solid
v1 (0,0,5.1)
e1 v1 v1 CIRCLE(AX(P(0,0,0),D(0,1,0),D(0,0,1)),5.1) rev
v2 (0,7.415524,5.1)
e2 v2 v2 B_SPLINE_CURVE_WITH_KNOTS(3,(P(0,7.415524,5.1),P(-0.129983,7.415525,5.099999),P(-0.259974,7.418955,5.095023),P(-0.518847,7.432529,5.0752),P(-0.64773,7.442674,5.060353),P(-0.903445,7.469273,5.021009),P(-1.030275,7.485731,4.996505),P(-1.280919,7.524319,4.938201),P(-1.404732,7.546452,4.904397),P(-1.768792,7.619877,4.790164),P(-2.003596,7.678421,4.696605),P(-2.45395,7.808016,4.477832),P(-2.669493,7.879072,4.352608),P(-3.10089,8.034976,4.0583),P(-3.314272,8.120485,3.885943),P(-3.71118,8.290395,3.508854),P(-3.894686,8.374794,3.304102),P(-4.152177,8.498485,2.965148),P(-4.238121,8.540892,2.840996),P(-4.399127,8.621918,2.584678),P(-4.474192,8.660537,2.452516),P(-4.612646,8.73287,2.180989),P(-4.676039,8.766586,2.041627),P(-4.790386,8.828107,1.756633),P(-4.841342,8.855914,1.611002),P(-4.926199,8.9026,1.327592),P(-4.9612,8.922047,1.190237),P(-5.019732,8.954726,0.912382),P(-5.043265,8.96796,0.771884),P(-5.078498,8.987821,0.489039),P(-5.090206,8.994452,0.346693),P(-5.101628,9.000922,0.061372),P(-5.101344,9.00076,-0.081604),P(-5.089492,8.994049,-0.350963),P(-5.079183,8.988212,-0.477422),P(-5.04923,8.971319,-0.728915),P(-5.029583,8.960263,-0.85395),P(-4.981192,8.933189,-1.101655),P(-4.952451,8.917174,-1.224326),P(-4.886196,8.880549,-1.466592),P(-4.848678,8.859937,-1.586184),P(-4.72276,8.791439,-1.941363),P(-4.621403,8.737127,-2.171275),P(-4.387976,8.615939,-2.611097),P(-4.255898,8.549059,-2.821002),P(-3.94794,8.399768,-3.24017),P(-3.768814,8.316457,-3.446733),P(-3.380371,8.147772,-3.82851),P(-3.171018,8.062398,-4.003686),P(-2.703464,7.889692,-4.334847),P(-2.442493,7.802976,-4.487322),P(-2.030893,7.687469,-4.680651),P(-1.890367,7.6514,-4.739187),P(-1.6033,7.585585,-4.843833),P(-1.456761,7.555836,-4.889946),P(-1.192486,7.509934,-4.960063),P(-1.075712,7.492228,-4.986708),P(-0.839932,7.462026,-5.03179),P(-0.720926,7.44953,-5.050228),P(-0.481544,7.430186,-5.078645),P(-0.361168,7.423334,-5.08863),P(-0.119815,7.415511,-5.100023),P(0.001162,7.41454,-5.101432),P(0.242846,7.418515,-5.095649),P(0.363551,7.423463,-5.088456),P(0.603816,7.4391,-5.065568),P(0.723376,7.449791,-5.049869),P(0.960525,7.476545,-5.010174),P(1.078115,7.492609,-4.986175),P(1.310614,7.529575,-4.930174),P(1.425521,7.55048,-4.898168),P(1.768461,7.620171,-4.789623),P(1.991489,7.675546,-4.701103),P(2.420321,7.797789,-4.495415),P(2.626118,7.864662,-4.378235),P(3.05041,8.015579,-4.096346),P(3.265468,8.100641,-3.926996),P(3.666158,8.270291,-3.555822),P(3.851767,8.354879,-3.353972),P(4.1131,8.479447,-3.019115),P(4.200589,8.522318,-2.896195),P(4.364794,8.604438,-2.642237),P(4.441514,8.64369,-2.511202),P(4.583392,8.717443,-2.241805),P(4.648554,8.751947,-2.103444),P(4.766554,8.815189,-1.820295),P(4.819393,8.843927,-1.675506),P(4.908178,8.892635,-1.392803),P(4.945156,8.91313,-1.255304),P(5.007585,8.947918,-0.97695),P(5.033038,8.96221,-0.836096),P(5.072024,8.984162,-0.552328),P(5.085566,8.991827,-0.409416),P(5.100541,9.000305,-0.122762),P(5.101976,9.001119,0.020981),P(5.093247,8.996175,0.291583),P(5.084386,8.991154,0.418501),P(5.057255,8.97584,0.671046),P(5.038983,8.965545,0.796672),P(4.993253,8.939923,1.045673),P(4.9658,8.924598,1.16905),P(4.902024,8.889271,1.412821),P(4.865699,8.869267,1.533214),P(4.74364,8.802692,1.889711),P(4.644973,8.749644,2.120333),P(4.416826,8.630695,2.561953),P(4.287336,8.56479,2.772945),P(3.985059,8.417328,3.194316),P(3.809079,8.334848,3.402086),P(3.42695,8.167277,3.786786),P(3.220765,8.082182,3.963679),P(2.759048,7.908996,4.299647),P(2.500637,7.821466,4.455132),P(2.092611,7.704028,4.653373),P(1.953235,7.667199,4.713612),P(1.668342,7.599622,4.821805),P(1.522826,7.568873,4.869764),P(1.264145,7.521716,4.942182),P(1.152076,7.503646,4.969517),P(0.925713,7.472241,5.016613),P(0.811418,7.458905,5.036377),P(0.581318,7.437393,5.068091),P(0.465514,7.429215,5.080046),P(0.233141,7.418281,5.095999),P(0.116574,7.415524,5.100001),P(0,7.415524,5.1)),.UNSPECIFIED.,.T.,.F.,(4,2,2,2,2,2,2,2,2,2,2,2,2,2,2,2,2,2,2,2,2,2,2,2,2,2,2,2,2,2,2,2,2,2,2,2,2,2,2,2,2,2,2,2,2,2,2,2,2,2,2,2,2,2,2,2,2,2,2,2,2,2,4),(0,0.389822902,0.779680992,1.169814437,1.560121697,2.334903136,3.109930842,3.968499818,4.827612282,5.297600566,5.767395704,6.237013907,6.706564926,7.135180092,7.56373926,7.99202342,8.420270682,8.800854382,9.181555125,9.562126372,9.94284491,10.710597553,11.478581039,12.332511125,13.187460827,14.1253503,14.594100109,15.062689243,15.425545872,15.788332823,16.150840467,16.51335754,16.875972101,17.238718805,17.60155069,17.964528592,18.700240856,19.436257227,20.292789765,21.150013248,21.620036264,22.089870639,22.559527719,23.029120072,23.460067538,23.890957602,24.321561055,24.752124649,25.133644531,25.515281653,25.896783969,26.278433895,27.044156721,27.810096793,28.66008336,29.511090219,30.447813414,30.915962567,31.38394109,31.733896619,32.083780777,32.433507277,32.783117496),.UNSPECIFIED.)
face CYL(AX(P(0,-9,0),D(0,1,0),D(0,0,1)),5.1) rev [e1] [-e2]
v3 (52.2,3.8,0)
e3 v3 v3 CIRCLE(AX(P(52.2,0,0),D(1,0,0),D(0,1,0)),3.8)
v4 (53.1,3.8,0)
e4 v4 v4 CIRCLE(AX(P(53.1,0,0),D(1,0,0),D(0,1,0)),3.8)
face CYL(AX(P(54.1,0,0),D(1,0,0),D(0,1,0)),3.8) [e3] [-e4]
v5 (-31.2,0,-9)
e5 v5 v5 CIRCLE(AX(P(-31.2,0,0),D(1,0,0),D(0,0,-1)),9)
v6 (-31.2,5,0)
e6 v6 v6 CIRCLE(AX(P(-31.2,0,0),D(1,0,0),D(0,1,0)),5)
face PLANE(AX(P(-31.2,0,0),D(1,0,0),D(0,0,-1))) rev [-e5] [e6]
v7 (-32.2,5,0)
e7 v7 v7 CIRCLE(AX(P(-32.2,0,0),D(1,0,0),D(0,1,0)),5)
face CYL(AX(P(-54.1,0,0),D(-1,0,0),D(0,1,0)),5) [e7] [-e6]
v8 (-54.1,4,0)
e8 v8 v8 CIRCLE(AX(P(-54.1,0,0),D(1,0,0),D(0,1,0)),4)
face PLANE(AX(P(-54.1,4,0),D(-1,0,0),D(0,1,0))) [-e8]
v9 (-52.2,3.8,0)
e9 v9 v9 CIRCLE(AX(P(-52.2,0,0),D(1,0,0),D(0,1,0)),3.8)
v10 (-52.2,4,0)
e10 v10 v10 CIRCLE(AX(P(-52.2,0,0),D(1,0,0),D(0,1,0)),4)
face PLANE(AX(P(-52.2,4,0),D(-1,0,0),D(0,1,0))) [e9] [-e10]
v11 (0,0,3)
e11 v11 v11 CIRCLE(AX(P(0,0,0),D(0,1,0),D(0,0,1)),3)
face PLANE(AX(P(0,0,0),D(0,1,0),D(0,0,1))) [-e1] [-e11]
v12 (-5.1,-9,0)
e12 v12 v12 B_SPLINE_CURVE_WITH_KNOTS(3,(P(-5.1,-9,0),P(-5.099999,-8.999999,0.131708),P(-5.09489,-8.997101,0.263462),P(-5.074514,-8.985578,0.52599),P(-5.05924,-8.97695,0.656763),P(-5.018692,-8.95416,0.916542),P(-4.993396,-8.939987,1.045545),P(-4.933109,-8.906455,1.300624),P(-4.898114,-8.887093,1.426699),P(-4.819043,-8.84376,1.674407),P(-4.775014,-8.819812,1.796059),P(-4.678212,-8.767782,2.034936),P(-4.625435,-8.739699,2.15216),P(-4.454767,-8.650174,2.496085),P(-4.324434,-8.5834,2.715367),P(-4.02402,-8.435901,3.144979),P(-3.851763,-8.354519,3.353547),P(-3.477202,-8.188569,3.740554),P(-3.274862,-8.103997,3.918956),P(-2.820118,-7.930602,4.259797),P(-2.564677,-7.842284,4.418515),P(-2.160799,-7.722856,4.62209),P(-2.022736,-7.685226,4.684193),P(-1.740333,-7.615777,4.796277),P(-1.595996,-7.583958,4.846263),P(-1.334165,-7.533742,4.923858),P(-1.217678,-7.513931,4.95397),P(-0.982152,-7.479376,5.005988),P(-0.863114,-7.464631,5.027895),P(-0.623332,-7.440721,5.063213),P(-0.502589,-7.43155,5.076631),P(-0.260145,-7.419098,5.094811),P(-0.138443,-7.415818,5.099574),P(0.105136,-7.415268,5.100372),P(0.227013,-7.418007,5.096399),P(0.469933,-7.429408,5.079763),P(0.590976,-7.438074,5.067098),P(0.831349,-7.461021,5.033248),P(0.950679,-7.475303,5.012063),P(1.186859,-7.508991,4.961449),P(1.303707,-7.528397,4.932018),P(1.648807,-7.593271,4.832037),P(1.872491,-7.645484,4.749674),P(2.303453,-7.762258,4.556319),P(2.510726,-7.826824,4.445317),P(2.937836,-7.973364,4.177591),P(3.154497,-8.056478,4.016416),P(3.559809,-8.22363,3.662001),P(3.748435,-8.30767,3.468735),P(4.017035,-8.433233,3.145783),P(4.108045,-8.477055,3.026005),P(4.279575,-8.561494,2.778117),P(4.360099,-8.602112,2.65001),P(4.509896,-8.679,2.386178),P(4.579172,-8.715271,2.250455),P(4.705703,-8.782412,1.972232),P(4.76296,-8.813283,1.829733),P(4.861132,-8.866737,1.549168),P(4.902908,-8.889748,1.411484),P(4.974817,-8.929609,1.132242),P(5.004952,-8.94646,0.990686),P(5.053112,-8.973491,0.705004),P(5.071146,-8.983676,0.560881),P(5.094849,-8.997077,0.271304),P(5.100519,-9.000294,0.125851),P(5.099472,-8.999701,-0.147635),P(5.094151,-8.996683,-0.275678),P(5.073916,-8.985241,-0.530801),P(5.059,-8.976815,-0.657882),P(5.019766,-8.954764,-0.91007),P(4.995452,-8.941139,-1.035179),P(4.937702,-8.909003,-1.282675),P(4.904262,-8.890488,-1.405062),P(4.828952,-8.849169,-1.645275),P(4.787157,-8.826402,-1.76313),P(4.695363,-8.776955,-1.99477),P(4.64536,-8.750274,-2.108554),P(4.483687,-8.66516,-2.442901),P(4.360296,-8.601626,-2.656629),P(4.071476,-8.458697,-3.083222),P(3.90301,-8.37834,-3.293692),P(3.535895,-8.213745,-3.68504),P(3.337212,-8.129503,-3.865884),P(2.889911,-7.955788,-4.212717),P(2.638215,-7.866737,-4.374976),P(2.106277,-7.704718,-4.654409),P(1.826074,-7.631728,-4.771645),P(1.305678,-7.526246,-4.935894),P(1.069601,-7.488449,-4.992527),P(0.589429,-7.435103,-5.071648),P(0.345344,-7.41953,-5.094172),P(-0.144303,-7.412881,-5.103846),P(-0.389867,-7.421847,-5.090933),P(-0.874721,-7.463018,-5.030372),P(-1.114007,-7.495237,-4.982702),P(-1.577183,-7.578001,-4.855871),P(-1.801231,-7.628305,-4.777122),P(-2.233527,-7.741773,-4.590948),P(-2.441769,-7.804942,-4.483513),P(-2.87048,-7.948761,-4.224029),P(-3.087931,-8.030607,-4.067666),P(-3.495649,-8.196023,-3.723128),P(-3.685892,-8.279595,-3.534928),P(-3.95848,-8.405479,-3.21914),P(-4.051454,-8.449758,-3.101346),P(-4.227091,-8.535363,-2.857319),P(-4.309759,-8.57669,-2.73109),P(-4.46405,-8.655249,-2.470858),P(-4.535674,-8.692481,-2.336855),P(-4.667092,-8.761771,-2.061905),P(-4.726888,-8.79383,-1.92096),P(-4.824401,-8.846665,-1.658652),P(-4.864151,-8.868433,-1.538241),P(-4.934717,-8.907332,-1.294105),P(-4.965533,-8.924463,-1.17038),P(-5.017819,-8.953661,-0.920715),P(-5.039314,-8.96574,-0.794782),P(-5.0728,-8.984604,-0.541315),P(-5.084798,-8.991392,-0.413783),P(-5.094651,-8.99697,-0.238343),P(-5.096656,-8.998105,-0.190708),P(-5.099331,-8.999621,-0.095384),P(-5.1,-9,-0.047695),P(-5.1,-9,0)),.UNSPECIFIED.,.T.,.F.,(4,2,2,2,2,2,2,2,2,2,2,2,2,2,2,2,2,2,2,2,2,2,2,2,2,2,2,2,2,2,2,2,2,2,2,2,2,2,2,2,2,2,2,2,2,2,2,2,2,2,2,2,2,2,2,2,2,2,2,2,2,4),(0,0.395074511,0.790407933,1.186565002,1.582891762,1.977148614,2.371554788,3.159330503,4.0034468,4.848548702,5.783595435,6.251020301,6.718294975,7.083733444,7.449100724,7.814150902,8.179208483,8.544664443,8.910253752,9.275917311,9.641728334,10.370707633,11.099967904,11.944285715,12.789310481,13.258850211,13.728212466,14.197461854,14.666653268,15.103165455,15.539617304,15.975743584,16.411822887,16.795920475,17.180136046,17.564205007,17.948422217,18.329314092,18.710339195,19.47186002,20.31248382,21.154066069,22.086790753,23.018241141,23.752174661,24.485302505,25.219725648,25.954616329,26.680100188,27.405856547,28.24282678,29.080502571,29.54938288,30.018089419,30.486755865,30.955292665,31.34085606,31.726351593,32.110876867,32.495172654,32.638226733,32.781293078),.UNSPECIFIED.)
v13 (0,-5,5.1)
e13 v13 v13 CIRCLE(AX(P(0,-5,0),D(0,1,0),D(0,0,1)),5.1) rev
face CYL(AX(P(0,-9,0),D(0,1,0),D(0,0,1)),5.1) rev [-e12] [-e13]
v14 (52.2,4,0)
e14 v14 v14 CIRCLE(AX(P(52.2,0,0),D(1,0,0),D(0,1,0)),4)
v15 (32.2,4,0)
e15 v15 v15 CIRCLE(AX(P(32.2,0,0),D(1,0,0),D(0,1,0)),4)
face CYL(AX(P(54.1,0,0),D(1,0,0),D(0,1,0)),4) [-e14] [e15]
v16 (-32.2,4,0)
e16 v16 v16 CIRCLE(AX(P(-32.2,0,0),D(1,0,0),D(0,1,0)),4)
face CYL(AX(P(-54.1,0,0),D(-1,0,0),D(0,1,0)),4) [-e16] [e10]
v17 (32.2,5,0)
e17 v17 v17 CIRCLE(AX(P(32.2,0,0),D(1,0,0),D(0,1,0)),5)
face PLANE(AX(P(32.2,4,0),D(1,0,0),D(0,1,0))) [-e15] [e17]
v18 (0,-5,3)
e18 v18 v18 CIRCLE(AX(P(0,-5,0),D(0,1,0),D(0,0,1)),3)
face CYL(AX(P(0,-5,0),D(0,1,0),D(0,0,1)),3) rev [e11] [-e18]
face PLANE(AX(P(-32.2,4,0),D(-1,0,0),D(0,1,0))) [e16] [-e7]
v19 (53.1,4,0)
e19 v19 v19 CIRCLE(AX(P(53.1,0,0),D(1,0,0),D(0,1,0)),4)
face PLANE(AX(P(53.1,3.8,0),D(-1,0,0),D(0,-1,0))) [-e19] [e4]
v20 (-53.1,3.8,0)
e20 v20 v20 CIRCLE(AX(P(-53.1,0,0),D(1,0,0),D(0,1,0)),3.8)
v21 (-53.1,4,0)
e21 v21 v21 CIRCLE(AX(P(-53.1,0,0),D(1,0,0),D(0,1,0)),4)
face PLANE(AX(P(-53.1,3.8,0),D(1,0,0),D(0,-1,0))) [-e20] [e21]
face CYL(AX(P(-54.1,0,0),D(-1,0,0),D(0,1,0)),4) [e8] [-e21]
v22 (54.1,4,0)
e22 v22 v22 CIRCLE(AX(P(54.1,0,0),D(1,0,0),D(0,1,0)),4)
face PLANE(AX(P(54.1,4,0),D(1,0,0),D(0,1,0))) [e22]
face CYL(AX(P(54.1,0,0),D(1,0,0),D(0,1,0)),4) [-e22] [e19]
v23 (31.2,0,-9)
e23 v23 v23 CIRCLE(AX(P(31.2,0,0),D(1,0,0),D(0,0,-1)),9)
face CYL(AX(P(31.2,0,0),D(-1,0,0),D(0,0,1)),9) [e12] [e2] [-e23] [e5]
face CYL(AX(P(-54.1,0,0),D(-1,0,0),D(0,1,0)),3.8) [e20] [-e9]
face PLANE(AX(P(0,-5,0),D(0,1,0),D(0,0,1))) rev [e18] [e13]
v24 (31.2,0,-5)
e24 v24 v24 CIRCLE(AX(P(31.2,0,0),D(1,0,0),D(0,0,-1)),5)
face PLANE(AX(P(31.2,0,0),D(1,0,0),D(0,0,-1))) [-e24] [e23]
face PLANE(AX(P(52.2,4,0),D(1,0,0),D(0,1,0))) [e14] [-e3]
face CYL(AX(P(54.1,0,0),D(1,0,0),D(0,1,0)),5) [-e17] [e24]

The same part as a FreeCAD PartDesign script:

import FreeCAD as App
import Part
import Sketcher
from FreeCAD import Vector


def add_polygon(sketch, points):
    """Adds a closed chain of lines whose ends are joined by coincident constraints."""
    first, n = sketch.GeometryCount, len(points)
    for a, b in zip(points, points[1:] + points[:1]):
        sketch.addGeometry(Part.LineSegment(App.Vector(*a, 0), App.Vector(*b, 0)), False)
    for i in range(n):
        sketch.addConstraint(Sketcher.Constraint("Coincident", first + i, 2, first + (i + 1) % n, 1))

doc = App.newDocument("Part")
body = doc.addObject("PartDesign::Body", "Body")

# Sketch on YZ plane
sketch1 = body.newObject("Sketcher::SketchObject", "Sketch")
sketch1.AttachmentSupport = (doc.getObject("YZ_Plane"), [""])
sketch1.MapMode = "FlatFace"
sketch1.addGeometry(Part.Circle(Vector(0, 0, 0), Vector(0, 0, 1), 9), False)
sketch1.addConstraint([
    Sketcher.Constraint("Coincident", 0, 3, -1, 1),
    Sketcher.Constraint("Diameter", 0, 18.0),
])
pad1 = body.newObject("PartDesign::Pad", "Pad")
pad1.Profile = sketch1
pad1.Length = 62.4
pad1.Midplane = True

# Sketch on XZ plane
sketch2 = body.newObject("Sketcher::SketchObject", "Sketch001")
sketch2.AttachmentSupport = (doc.getObject("XZ_Plane"), [""])
sketch2.MapMode = "FlatFace"
sketch2.addGeometry(Part.Circle(Vector(0, 0, 0), Vector(0, 0, 1), 5), False)
sketch2.addConstraint([
    Sketcher.Constraint("Coincident", 0, 3, -1, 1),
    Sketcher.Constraint("Diameter", 0, 10.2),
])
pocket1 = body.newObject("PartDesign::Pocket", "Pocket")
pocket1.Profile = sketch2
pocket1.Type = "ThroughAll"
pocket1.Midplane = True

# Sketch on XY plane
sketch3 = body.newObject("Sketcher::SketchObject", "Sketch002")
sketch3.AttachmentSupport = (doc.getObject("XY_Plane"), [""])
sketch3.MapMode = "FlatFace"
add_polygon(sketch3, [(31.2, 5), (31.2, 0), (54.1, 0), (54.1, 4), (53.1, 4), (53.1, 3.8), (52.2, 3.8), (52.2, 4), (32.2, 4), (32.2, 5)])  # lines 0-9
sketch3.addConstraint([
    Sketcher.Constraint("Vertical", 0),
    Sketcher.Constraint("Horizontal", 1),
    Sketcher.Constraint("Vertical", 2),
    Sketcher.Constraint("Horizontal", 3),
    Sketcher.Constraint("Vertical", 4),
    Sketcher.Constraint("Horizontal", 5),
    Sketcher.Constraint("Vertical", 6),
    Sketcher.Constraint("Horizontal", 7),
    Sketcher.Constraint("Vertical", 8),
    Sketcher.Constraint("Horizontal", 9),
    Sketcher.Constraint("PointOnObject", 0, 2, -1),
    Sketcher.Constraint("Horizontal", 3, 2, 6, 2),
    Sketcher.Constraint("Equal", 3, 9),
    Sketcher.Constraint("Equal", 9, 8),
    Sketcher.Constraint("DistanceX", 3, 2, 3, 1, 1.0),
    Sketcher.Constraint("DistanceX", 7, 2, 7, 1, 20.0),
    Sketcher.Constraint("DistanceY", 0, 2, 0, 1, 5.0),
    Sketcher.Constraint("DistanceX", 1, 1, 1, 2, 22.9),
    Sketcher.Constraint("DistanceY", 4, 2, 4, 1, 0.2),
    Sketcher.Constraint("DistanceX", -1, 1, 0, 2, 31.2),
])
revolution = body.newObject("PartDesign::Revolution", "Revolution")
revolution.Profile = sketch3
revolution.ReferenceAxis = (sketch3, ["H_Axis"])
revolution.Angle = 360
doc.recompute()

mirrored = body.newObject("PartDesign::Mirrored", "Mirrored")
mirrored.Originals = [revolution]
mirrored.MirrorPlane = (doc.getObject("YZ_Plane"), [""])
body.Tip = mirrored

# Sketch on XZ plane
sketch4 = body.newObject("Sketcher::SketchObject", "Sketch003")
sketch4.AttachmentSupport = (doc.getObject("XZ_Plane"), [""])
sketch4.MapMode = "FlatFace"
sketch4.addGeometry([
    Part.Circle(Vector(0, 0, 0), Vector(0, 0, 1), 5.2),
    Part.Circle(Vector(0, 0, 0), Vector(0, 0, 1), 3),
], False)
sketch4.addConstraint([
    Sketcher.Constraint("Coincident", 0, 3, -1, 1),
    Sketcher.Constraint("Coincident", 1, 3, -1, 1),
    Sketcher.Constraint("Diameter", 1, 6.0),
    Sketcher.Constraint("Diameter", 0, 10.5),
])
pad2 = body.newObject("PartDesign::Pad", "Pad001")
pad2.Profile = sketch4
pad2.Length = 5

doc.recompute()
